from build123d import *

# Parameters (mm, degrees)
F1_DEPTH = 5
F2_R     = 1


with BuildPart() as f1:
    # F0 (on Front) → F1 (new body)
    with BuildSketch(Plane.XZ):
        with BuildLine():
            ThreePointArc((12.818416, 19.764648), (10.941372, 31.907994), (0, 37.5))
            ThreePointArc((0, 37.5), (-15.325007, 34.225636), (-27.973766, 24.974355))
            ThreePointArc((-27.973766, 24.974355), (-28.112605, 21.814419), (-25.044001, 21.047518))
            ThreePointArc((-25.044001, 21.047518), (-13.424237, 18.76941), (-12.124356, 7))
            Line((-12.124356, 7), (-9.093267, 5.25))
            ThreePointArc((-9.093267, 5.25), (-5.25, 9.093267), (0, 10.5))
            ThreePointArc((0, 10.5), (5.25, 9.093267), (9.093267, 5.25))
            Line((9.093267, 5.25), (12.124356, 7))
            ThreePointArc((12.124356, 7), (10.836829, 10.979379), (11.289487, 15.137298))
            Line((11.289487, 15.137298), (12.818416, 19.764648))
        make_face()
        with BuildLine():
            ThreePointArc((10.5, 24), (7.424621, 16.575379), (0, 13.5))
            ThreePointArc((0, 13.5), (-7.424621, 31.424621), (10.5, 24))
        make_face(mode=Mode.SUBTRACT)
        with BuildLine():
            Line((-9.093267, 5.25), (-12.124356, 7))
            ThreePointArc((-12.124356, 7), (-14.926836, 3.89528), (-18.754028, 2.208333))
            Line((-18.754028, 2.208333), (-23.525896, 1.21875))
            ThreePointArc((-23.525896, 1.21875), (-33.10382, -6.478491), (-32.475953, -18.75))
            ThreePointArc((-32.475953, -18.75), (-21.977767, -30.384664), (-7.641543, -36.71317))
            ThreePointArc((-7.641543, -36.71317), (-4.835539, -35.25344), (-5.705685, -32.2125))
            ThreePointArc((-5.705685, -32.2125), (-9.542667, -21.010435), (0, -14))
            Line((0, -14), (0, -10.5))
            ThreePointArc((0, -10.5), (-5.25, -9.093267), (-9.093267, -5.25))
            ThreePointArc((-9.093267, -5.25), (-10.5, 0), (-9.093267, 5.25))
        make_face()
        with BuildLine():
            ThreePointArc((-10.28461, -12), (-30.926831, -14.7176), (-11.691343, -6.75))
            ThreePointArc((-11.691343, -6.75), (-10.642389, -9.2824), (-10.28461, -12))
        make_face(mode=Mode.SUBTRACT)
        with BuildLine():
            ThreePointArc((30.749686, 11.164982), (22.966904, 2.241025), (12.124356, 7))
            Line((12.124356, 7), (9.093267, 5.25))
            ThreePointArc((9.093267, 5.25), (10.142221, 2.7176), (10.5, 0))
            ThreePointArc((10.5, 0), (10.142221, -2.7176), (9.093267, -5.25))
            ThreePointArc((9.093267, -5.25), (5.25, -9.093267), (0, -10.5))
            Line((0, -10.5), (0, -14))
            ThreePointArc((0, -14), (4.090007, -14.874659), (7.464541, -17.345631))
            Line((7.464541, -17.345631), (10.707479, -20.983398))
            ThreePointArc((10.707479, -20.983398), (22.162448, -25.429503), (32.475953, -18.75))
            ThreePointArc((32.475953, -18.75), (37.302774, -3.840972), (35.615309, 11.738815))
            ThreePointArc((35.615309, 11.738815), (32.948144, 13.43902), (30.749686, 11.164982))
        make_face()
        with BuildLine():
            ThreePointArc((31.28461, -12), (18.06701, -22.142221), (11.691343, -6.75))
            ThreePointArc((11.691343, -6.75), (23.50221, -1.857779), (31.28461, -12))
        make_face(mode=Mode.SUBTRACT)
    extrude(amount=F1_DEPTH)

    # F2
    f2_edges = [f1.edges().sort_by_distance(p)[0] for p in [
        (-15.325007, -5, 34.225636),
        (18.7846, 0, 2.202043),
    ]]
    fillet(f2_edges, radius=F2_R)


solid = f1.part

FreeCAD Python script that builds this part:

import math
import FreeCAD as App
import Part
import Sketcher
from FreeCAD import Vector
Q = App.Units.Quantity


def edges_at(feature, points):
    """Names of the edges that pass closest to the given points."""
    edges = feature.Shape.Edges
    near = lambda p: min(range(len(edges)), key=lambda i: edges[i].distToShape(Part.Vertex(*p))[0])
    return sorted({f"Edge{near(p) + 1}" for p in points})

doc = App.newDocument("Part")
params = doc.addObject("Spreadsheet::Sheet", "Params")
for row, (alias, value) in enumerate([
    ("sketch1_radius", "10 mm"),
    ("sketch1_radius2", "13.5 mm"),
    ("sketch1_radius3", "37.499999 mm"),
    ("sketch1_radius4", "2.5 mm"),
    ("sketch1_radius5", "10.5 mm"),
    ("pad1_length", "5 mm"),
    ("fillet_radius", "1 mm"),
], start=1):
    params.set(f"A{row}", alias)
    params.set(f"B{row}", "=" + value)
    params.setAlias(f"B{row}", alias)

body = doc.addObject("PartDesign::Body", "Body")

sketch1 = doc.addObject("Sketcher::SketchObject", "Sketch")
body.addObject(sketch1)
sketch1.AttachmentSupport = (doc.XZ_Plane, [""])
sketch1.MapMode = "FlatFace"
sketch1.addGeometry([
    Part.ArcOfCircle(Part.Circle(Vector(0, 24, 0), Vector(0, 0, 1), 13.5), math.radians(-18), math.radians(90)),
    Part.ArcOfCircle(Part.Circle(Vector(0, 0, 0), Vector(0, 0, 1), 37.5), math.radians(90), math.radians(138)),
    Part.ArcOfCircle(Part.Circle(Vector(-26.1, 23.3, 0), Vector(0, 0, 1), 2.5), math.radians(138), math.radians(295)),
    Part.ArcOfCircle(Part.Circle(Vector(-20.8, 12, 0), Vector(0, 0, 1), 10), math.radians(-30), math.radians(115)),
    Part.ArcOfCircle(Part.Circle(Vector(-20.8, 12, 0), Vector(0, 0, 1), 10), math.radians(-78), math.radians(-30)),
    Part.LineSegment(Vector(-18.8, 2.2, 0), Vector(-23.5, 1.2, 0)),
    Part.ArcOfCircle(Part.Circle(Vector(-20.8, -12, 0), Vector(0, 0, 1), 13.5), math.radians(102), math.radians(210)),
    Part.ArcOfCircle(Part.Circle(Vector(0, 0, 0), Vector(0, 0, 1), 37.5), math.radians(-150), math.radians(-102)),
    Part.ArcOfCircle(Part.Circle(Vector(-7.1, -34.3, 0), Vector(0, 0, 1), 2.5), math.radians(-102), math.radians(55)),
    Part.ArcOfCircle(Part.Circle(Vector(0, -24, 0), Vector(0, 0, 1), 10), math.radians(90), math.radians(235)),
    Part.ArcOfCircle(Part.Circle(Vector(0, -24, 0), Vector(0, 0, 1), 10), math.radians(42), math.radians(90)),
    Part.LineSegment(Vector(7.5, -17.3, 0), Vector(10.7, -21, 0)),
    Part.ArcOfCircle(Part.Circle(Vector(20.8, -12, 0), Vector(0, 0, 1), 13.5), math.radians(-138), math.radians(-30)),
    Part.ArcOfCircle(Part.Circle(Vector(0, 0, 0), Vector(0, 0, 1), 37.5), math.radians(-30), math.radians(18)),
    Part.ArcOfCircle(Part.Circle(Vector(33.2, 11, 0), Vector(0, 0, 1), 2.5), math.radians(18), math.radians(175)),
    Part.ArcOfCircle(Part.Circle(Vector(20.8, 12, 0), Vector(0, 0, 1), 10), math.radians(-150), math.radians(-5)),
    Part.ArcOfCircle(Part.Circle(Vector(20.8, 12, 0), Vector(0, 0, 1), 10), math.radians(162), math.radians(210)),
    Part.LineSegment(Vector(11.3, 15.1, 0), Vector(12.8, 19.8, 0)),
    Part.ArcOfCircle(Part.Circle(Vector(-20.8, -12, 0), Vector(0, 0, 1), 10.5), math.radians(0), math.radians(30)),
    Part.ArcOfCircle(Part.Circle(Vector(-20.8, -12, 0), Vector(0, 0, 1), 10.5), math.radians(30), math.radians(360)),
    Part.ArcOfCircle(Part.Circle(Vector(0, 0, 0), Vector(0, 0, 1), 10.5), math.radians(30), math.radians(90)),
    Part.ArcOfCircle(Part.Circle(Vector(0, 0, 0), Vector(0, 0, 1), 10.5), math.radians(0), math.radians(30)),
    Part.ArcOfCircle(Part.Circle(Vector(0, 0, 0), Vector(0, 0, 1), 10.5), math.radians(-30), math.radians(0)),
    Part.ArcOfCircle(Part.Circle(Vector(0, 0, 0), Vector(0, 0, 1), 10.5), math.radians(-90), math.radians(-30)),
    Part.ArcOfCircle(Part.Circle(Vector(0, 0, 0), Vector(0, 0, 1), 10.5), math.radians(-150), math.radians(-90)),
    Part.ArcOfCircle(Part.Circle(Vector(0, 0, 0), Vector(0, 0, 1), 10.5), math.radians(150), math.radians(210)),
    Part.ArcOfCircle(Part.Circle(Vector(0, 0, 0), Vector(0, 0, 1), 10.5), math.radians(90), math.radians(150)),
    Part.ArcOfCircle(Part.Circle(Vector(20.8, -12, 0), Vector(0, 0, 1), 10.5), math.radians(0), math.radians(150)),
    Part.ArcOfCircle(Part.Circle(Vector(20.8, -12, 0), Vector(0, 0, 1), 10.5), math.radians(150), math.radians(360)),
    Part.ArcOfCircle(Part.Circle(Vector(0, 24, 0), Vector(0, 0, 1), 10.5), math.radians(0), math.radians(270)),
    Part.ArcOfCircle(Part.Circle(Vector(0, 24, 0), Vector(0, 0, 1), 10.5), math.radians(-90), math.radians(0)),
], False)
sketch1.addConstraint([
    Sketcher.Constraint("Tangent", 0, 2, 1, 1),
    Sketcher.Constraint("Tangent", 1, 2, 2, 1),
    Sketcher.Constraint("Tangent", 2, 2, 3, 2),
    Sketcher.Constraint("Tangent", 3, 1, 4, 2),
    Sketcher.Constraint("Tangent", 4, 1, 5, 1),
    Sketcher.Constraint("Tangent", 5, 2, 6, 1),
    Sketcher.Constraint("Tangent", 6, 2, 7, 1),
    Sketcher.Constraint("Tangent", 7, 2, 8, 1),
    Sketcher.Constraint("Tangent", 8, 2, 9, 2),
    Sketcher.Constraint("Tangent", 9, 1, 10, 2),
    Sketcher.Constraint("Tangent", 10, 1, 11, 1),
    Sketcher.Constraint("Tangent", 11, 2, 12, 1),
    Sketcher.Constraint("Tangent", 12, 2, 13, 1),
    Sketcher.Constraint("Tangent", 13, 2, 14, 1),
    Sketcher.Constraint("Tangent", 14, 2, 15, 2),
    Sketcher.Constraint("Tangent", 15, 1, 16, 2),
    Sketcher.Constraint("Tangent", 16, 1, 17, 1),
    Sketcher.Constraint("Tangent", 17, 2, 0, 1),
    Sketcher.Constraint("Tangent", 18, 1, 19, 2),
    Sketcher.Constraint("Coincident", 19, 1, 18, 2),
    Sketcher.Constraint("Tangent", 20, 1, 21, 2),
    Sketcher.Constraint("Tangent", 21, 1, 22, 2),
    Sketcher.Constraint("Tangent", 22, 1, 23, 2),
    Sketcher.Constraint("Tangent", 23, 1, 24, 2),
    Sketcher.Constraint("Tangent", 24, 1, 25, 2),
    Sketcher.Constraint("Tangent", 25, 1, 26, 2),
    Sketcher.Constraint("Tangent", 26, 1, 20, 2),
    Sketcher.Constraint("Tangent", 27, 1, 28, 2),
    Sketcher.Constraint("Coincident", 28, 1, 27, 2),
    Sketcher.Constraint("Tangent", 29, 1, 30, 2),
    Sketcher.Constraint("Coincident", 30, 1, 29, 2),
    Sketcher.Constraint("Coincident", 1, 3, -1, 1),
    Sketcher.Constraint("Coincident", 7, 3, -1, 1),
    Sketcher.Constraint("Coincident", 13, 3, -1, 1),
    Sketcher.Constraint("Coincident", 20, 3, -1, 1),
    Sketcher.Constraint("Coincident", 22, 3, -1, 1),
    Sketcher.Constraint("Coincident", 24, 3, -1, 1),
    Sketcher.Constraint("Coincident", 18, 3, 6, 3),
    Sketcher.Constraint("Coincident", 27, 3, 12, 3),
    Sketcher.Constraint("Coincident", 29, 3, 0, 3),
    Sketcher.Constraint("Equal", 3, 4),
    Sketcher.Constraint("Equal", 0, 6),
    Sketcher.Constraint("Equal", 2, 8),
    Sketcher.Constraint("Equal", 4, 9),
    Sketcher.Constraint("Equal", 6, 12),
    Sketcher.Constraint("Equal", 1, 13),
    Sketcher.Constraint("Equal", 8, 14),
    Sketcher.Constraint("Equal", 9, 15),
    Sketcher.Constraint("Equal", 19, 20),
    Sketcher.Constraint("Equal", 26, 27),
    Sketcher.Constraint("Equal", 28, 29),
    Sketcher.Constraint("Symmetric", 0, 3, 9, 3, -1, 1),
    Sketcher.Constraint("Symmetric", 3, 3, 12, 3, -1, 1),
    Sketcher.Constraint("Symmetric", 6, 3, 15, 3, -1, 1),
    Sketcher.Constraint("Symmetric", 6, 3, 12, 3, -2),
    Sketcher.Constraint("Symmetric", 0, 3, 10, 3, -1),
    Sketcher.Constraint("PointOnObject", 9, 1, -2),
    Sketcher.Constraint("PointOnObject", 21, 1, -1),
    Sketcher.Constraint("PointOnObject", 23, 1, -2),
    Sketcher.Constraint("PointOnObject", 26, 1, -2),
    Sketcher.Constraint("PointOnObject", 30, 1, -2),
    Sketcher.Constraint("Horizontal", 4, 3, 16, 3),
    Sketcher.Constraint("Horizontal", 3, 1, 15, 1),
    Sketcher.Constraint("Horizontal", 28, 3, 18, 1),
    Sketcher.Constraint("Horizontal", 22, 1, 24, 1),
    Sketcher.Constraint("Horizontal", 20, 1, 25, 1),
    Sketcher.Constraint("Horizontal", 18, 1, 27, 1),
    Sketcher.Constraint("Horizontal", 19, 1, 28, 1),
    Sketcher.Constraint("Horizontal", 30, 3, 29, 1),
    Sketcher.Constraint("Vertical", 20, 1, 22, 1),
    Sketcher.Constraint("Equal", 5, 11),
    Sketcher.Constraint("Radius", 3, Q("10 mm")),
    Sketcher.Constraint("Radius", 0, Q("13.5 mm")),
    Sketcher.Constraint("Radius", 1, Q("37.499999 mm")),
    Sketcher.Constraint("Radius", 2, Q("2.5 mm")),
    Sketcher.Constraint("Radius", 19, Q("10.5 mm")),
    Sketcher.Constraint("DistanceY", -1, 1, 3, 1, Q("7 mm")),
    Sketcher.Constraint("DistanceY", 22, 1, 20, 1, Q("10.5 mm")),
    Sketcher.Constraint("DistanceY", 19, 1, 24, 1, Q("1.5 mm")),
])
sketch1.setExpression("Constraints[71]", "Params.sketch1_radius")
sketch1.setExpression("Constraints[72]", "Params.sketch1_radius2")
sketch1.setExpression("Constraints[73]", "Params.sketch1_radius3")
sketch1.setExpression("Constraints[74]", "Params.sketch1_radius4")
sketch1.setExpression("Constraints[75]", "Params.sketch1_radius5")
pad1 = doc.addObject("PartDesign::Pad", "Pad")
body.addObject(pad1)
pad1.Profile = sketch1
pad1.setExpression("Length", "Params.pad1_length")
doc.recompute()

fillet = doc.addObject("PartDesign::Fillet", "Fillet")
body.addObject(fillet)
fillet.Base = (pad1, edges_at(pad1, [(-15.325, -5, 34.226), (22.967, 0, 2.241)]))
fillet.setExpression("Radius", "Params.fillet_radius")

doc.recompute()
